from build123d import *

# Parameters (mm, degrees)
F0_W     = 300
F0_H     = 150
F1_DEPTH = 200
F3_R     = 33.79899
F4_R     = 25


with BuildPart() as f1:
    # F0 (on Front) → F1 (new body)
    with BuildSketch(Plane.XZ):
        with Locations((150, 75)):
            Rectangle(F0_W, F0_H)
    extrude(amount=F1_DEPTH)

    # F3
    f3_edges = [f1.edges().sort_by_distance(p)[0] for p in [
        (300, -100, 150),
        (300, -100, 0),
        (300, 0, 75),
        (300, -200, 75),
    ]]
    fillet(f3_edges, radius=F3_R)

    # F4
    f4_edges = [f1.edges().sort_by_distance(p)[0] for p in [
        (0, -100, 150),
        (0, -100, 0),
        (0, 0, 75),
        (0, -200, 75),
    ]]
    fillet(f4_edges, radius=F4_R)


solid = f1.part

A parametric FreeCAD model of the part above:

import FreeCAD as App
import Part
import Sketcher


def edges_at(feature, points):
    """Names of the edges that pass closest to the given points."""
    edges = feature.Shape.Edges
    near = lambda p: min(range(len(edges)), key=lambda i: edges[i].distToShape(Part.Vertex(*p))[0])
    return sorted({f"Edge{near(p) + 1}" for p in points})


def add_polygon(sketch, points):
    """Adds a closed chain of lines whose ends are joined by coincident constraints."""
    first, n = sketch.GeometryCount, len(points)
    for a, b in zip(points, points[1:] + points[:1]):
        sketch.addGeometry(Part.LineSegment(App.Vector(*a, 0), App.Vector(*b, 0)), False)
    for i in range(n):
        sketch.addConstraint(Sketcher.Constraint("Coincident", first + i, 2, first + (i + 1) % n, 1))

doc = App.newDocument("Part")
body = doc.addObject("PartDesign::Body", "Body")

sketch1 = body.newObject("Sketcher::SketchObject", "Sketch")
sketch1.AttachmentSupport = (doc.getObject("XZ_Plane"), [""])
sketch1.MapMode = "FlatFace"
add_polygon(sketch1, [(0, 150), (0, 0), (300, 0), (300, 150)])
sketch1.addConstraint([
    Sketcher.Constraint("Vertical", 0),
    Sketcher.Constraint("Horizontal", 1),
    Sketcher.Constraint("Vertical", 2),
    Sketcher.Constraint("Horizontal", 3),
    Sketcher.Constraint("Coincident", 0, 2, -1, 1),
    Sketcher.Constraint("DistanceX", 1, 1, 1, 2, 300.0),
    Sketcher.Constraint("DistanceY", 0, 2, 0, 1, 150.0),
])
pad1 = body.newObject("PartDesign::Pad", "Pad")
pad1.Profile = sketch1
pad1.Length = 200
doc.recompute()

fillet = body.newObject("PartDesign::Fillet", "Fillet")
fillet.Base = (pad1, edges_at(pad1, [
    (300, -100, 150),
    (300, -100, 0),
    (300, 0, 75),
    (300, -200, 75),
]))
fillet.Radius = 33.79899
doc.recompute()

fillet2 = body.newObject("PartDesign::Fillet", "Fillet001")
fillet2.Base = (fillet, edges_at(fillet, [
    (0, -100, 150),
    (0, -100, 0),
    (0, 0, 75),
    (0, -200, 75),
]))
fillet2.Radius = 25

doc.recompute()
